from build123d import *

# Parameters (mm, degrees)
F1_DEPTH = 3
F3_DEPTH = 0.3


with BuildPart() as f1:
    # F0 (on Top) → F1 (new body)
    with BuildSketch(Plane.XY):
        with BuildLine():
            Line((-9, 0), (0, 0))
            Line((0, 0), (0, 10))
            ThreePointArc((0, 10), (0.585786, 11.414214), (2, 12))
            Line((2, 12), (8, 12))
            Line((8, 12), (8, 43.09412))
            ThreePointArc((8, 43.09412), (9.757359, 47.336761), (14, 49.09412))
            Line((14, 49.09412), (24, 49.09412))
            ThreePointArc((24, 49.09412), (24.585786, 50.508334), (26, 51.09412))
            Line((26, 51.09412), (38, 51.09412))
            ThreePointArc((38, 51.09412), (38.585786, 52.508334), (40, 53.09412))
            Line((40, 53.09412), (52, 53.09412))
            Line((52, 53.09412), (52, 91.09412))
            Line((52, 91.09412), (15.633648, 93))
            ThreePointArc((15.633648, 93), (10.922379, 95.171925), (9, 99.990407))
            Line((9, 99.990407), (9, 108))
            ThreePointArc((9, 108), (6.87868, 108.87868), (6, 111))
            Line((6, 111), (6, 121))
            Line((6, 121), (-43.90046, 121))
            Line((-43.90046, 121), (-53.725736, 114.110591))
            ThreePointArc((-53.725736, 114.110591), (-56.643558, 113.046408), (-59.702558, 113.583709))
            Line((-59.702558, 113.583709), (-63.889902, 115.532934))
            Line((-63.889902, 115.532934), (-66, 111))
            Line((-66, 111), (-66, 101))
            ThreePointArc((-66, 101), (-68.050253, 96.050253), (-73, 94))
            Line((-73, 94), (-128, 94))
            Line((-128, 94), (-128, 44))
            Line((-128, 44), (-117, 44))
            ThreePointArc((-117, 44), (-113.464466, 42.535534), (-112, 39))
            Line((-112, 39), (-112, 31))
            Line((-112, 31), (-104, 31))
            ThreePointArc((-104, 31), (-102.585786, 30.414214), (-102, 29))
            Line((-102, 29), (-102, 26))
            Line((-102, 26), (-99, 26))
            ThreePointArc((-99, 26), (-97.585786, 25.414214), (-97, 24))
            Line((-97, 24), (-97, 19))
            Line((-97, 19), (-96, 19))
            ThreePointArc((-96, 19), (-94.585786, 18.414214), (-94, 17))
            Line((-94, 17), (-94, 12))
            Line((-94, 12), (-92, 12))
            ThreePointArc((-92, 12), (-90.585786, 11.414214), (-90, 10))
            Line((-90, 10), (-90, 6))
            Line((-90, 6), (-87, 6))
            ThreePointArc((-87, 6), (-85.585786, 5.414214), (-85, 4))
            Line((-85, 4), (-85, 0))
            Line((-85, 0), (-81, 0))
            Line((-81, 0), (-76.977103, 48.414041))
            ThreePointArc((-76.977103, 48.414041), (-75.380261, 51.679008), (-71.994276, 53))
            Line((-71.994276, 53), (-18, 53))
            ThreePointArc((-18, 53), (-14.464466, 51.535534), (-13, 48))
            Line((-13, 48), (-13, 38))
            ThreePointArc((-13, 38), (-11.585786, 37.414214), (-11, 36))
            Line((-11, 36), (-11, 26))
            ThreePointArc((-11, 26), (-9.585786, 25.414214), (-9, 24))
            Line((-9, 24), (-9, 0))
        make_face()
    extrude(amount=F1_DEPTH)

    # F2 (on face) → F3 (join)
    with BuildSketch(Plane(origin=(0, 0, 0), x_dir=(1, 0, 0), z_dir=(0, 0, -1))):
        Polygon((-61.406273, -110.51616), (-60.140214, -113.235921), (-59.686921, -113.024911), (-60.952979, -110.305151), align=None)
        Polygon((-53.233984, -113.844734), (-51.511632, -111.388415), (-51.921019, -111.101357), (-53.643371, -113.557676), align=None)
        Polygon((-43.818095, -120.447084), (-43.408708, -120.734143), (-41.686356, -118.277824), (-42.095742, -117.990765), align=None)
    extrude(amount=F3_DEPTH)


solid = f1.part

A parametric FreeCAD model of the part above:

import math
import FreeCAD as App
import Part
import Sketcher
from FreeCAD import Vector
Q = App.Units.Quantity


def add_polygon(sketch, points):
    """Adds a closed chain of lines whose ends are joined by coincident constraints."""
    first, n = sketch.GeometryCount, len(points)
    for a, b in zip(points, points[1:] + points[:1]):
        sketch.addGeometry(Part.LineSegment(App.Vector(*a, 0), App.Vector(*b, 0)), False)
    for i in range(n):
        sketch.addConstraint(Sketcher.Constraint("Coincident", first + i, 2, first + (i + 1) % n, 1))

doc = App.newDocument("Part")
params = doc.addObject("Spreadsheet::Sheet", "Params")
for row, (alias, value) in enumerate([
    ("sketch1_radius", "1.999999 mm"),
    ("sketch1_radius2", "5.999999 mm"),
    ("sketch1_radius3", "7 mm"),
    ("sketch1_radius4", "3.000001 mm"),
    ("sketch1_radius5", "5 mm"),
    ("pad1_length", "3 mm"),
    ("sketch2_length", "3.000001 mm"),
    ("sketch2_length2", "0.5 mm"),
    ("pad2_length", "0.3 mm"),
], start=1):
    params.set(f"A{row}", alias)
    params.set(f"B{row}", "=" + value)
    params.setAlias(f"B{row}", alias)

body = doc.addObject("PartDesign::Body", "Body")

# Sketch on XY plane
sketch1 = body.newObject("Sketcher::SketchObject", "Sketch")
sketch1.AttachmentSupport = (doc.getObject("XY_Plane"), [""])
sketch1.MapMode = "FlatFace"
sketch1.addGeometry([
    Part.LineSegment(Vector(-9, 0, 0), Vector(0, 0, 0)),  # 0
    Part.LineSegment(Vector(0, 0, 0), Vector(0, 10, 0)),  # 1
    Part.ArcOfCircle(Part.Circle(Vector(2, 10, 0), Vector(0, 0, 1), 2), math.radians(90), math.radians(180)),  # 2
    Part.LineSegment(Vector(2, 12, 0), Vector(8, 12, 0)),  # 3
    Part.LineSegment(Vector(8, 12, 0), Vector(8, 43.1, 0)),  # 4
    Part.ArcOfCircle(Part.Circle(Vector(14, 43.1, 0), Vector(0, 0, 1), 6), math.radians(90), math.radians(180)),  # 5
    Part.LineSegment(Vector(14, 49.1, 0), Vector(24, 49.1, 0)),  # 6
    Part.ArcOfCircle(Part.Circle(Vector(26, 49.1, 0), Vector(0, 0, 1), 2), math.radians(90), math.radians(180)),  # 7
    Part.LineSegment(Vector(26, 51.1, 0), Vector(38, 51.1, 0)),  # 8
    Part.ArcOfCircle(Part.Circle(Vector(40, 51.1, 0), Vector(0, 0, 1), 2), math.radians(90), math.radians(180)),  # 9
    Part.LineSegment(Vector(40, 53.1, 0), Vector(52, 53.1, 0)),  # 10
    Part.LineSegment(Vector(52, 53.1, 0), Vector(52, 91.1, 0)),  # 11
    Part.LineSegment(Vector(52, 91.1, 0), Vector(15.6, 93, 0)),  # 12
    Part.ArcOfCircle(Part.Circle(Vector(16, 100, 0), Vector(0, 0, 1), 7), math.radians(180), math.radians(267)),  # 13
    Part.LineSegment(Vector(9, 100, 0), Vector(9, 108, 0)),  # 14
    Part.ArcOfCircle(Part.Circle(Vector(9, 111, 0), Vector(0, 0, 1), 3), math.radians(-180), math.radians(-90)),  # 15
    Part.LineSegment(Vector(6, 111, 0), Vector(6, 121, 0)),  # 16
    Part.LineSegment(Vector(6, 121, 0), Vector(-43.9, 121, 0)),  # 17
    Part.LineSegment(Vector(-43.9, 121, 0), Vector(-53.7, 114.1, 0)),  # 18
    Part.ArcOfCircle(Part.Circle(Vector(-57.2, 119, 0), Vector(0, 0, 1), 6), math.radians(-115), math.radians(-55)),  # 19
    Part.LineSegment(Vector(-59.7, 113.6, 0), Vector(-63.9, 115.5, 0)),  # 20
    Part.LineSegment(Vector(-63.9, 115.5, 0), Vector(-66, 111, 0)),  # 21
    Part.LineSegment(Vector(-66, 111, 0), Vector(-66, 101, 0)),  # 22
    Part.ArcOfCircle(Part.Circle(Vector(-73, 101, 0), Vector(0, 0, 1), 7), math.radians(-90), math.radians(0)),  # 23
    Part.LineSegment(Vector(-73, 94, 0), Vector(-128, 94, 0)),  # 24
    Part.LineSegment(Vector(-128, 94, 0), Vector(-128, 44, 0)),  # 25
    Part.LineSegment(Vector(-128, 44, 0), Vector(-117, 44, 0)),  # 26
    Part.ArcOfCircle(Part.Circle(Vector(-117, 39, 0), Vector(0, 0, 1), 5), math.radians(0), math.radians(90)),  # 27
    Part.LineSegment(Vector(-112, 39, 0), Vector(-112, 31, 0)),  # 28
    Part.LineSegment(Vector(-112, 31, 0), Vector(-104, 31, 0)),  # 29
    Part.ArcOfCircle(Part.Circle(Vector(-104, 29, 0), Vector(0, 0, 1), 2), math.radians(0), math.radians(90)),  # 30
    Part.LineSegment(Vector(-102, 29, 0), Vector(-102, 26, 0)),  # 31
    Part.LineSegment(Vector(-102, 26, 0), Vector(-99, 26, 0)),  # 32
    Part.ArcOfCircle(Part.Circle(Vector(-99, 24, 0), Vector(0, 0, 1), 2), math.radians(0), math.radians(90)),  # 33
    Part.LineSegment(Vector(-97, 24, 0), Vector(-97, 19, 0)),  # 34
    Part.LineSegment(Vector(-97, 19, 0), Vector(-96, 19, 0)),  # 35
    Part.ArcOfCircle(Part.Circle(Vector(-96, 17, 0), Vector(0, 0, 1), 2), math.radians(0), math.radians(90)),  # 36
    Part.LineSegment(Vector(-94, 17, 0), Vector(-94, 12, 0)),  # 37
    Part.LineSegment(Vector(-94, 12, 0), Vector(-92, 12, 0)),  # 38
    Part.ArcOfCircle(Part.Circle(Vector(-92, 10, 0), Vector(0, 0, 1), 2), math.radians(0), math.radians(90)),  # 39
    Part.LineSegment(Vector(-90, 10, 0), Vector(-90, 6, 0)),  # 40
    Part.LineSegment(Vector(-90, 6, 0), Vector(-87, 6, 0)),  # 41
    Part.ArcOfCircle(Part.Circle(Vector(-87, 4, 0), Vector(0, 0, 1), 2), math.radians(0), math.radians(90)),  # 42
    Part.LineSegment(Vector(-85, 4, 0), Vector(-85, 0, 0)),  # 43
    Part.LineSegment(Vector(-85, 0, 0), Vector(-81, 0, 0)),  # 44
    Part.LineSegment(Vector(-81, 0, 0), Vector(-77, 48.4, 0)),  # 45
    Part.ArcOfCircle(Part.Circle(Vector(-72, 48, 0), Vector(0, 0, 1), 5), math.radians(90), math.radians(175)),  # 46
    Part.LineSegment(Vector(-72, 53, 0), Vector(-18, 53, 0)),  # 47
    Part.ArcOfCircle(Part.Circle(Vector(-18, 48, 0), Vector(0, 0, 1), 5), math.radians(0), math.radians(90)),  # 48
    Part.LineSegment(Vector(-13, 48, 0), Vector(-13, 38, 0)),  # 49
    Part.ArcOfCircle(Part.Circle(Vector(-13, 36, 0), Vector(0, 0, 1), 2), math.radians(0), math.radians(90)),  # 50
    Part.LineSegment(Vector(-11, 36, 0), Vector(-11, 26, 0)),  # 51
    Part.ArcOfCircle(Part.Circle(Vector(-11, 24, 0), Vector(0, 0, 1), 2), math.radians(0), math.radians(90)),  # 52
    Part.LineSegment(Vector(-9, 24, 0), Vector(-9, 0, 0)),  # 53
], False)
sketch1.addConstraint([
    Sketcher.Constraint("Coincident", 0, 2, 1, 1),
    Sketcher.Constraint("Tangent", 1, 2, 2, 2),
    Sketcher.Constraint("Tangent", 2, 1, 3, 1),
    Sketcher.Constraint("Coincident", 3, 2, 4, 1),
    Sketcher.Constraint("Tangent", 4, 2, 5, 2),
    Sketcher.Constraint("Tangent", 5, 1, 6, 1),
    Sketcher.Constraint("Coincident", 6, 2, 7, 2),
    Sketcher.Constraint("Tangent", 7, 1, 8, 1),
    Sketcher.Constraint("Coincident", 8, 2, 9, 2),
    Sketcher.Constraint("Tangent", 9, 1, 10, 1),
    Sketcher.Constraint("Coincident", 10, 2, 11, 1),
    Sketcher.Constraint("Coincident", 11, 2, 12, 1),
    Sketcher.Constraint("Tangent", 12, 2, 13, 2),
    Sketcher.Constraint("Tangent", 13, 1, 14, 1),
    Sketcher.Constraint("Coincident", 14, 2, 15, 2),
    Sketcher.Constraint("Tangent", 15, 1, 16, 1),
    Sketcher.Constraint("Coincident", 16, 2, 17, 1),
    Sketcher.Constraint("Coincident", 17, 2, 18, 1),
    Sketcher.Constraint("Tangent", 18, 2, 19, 2),
    Sketcher.Constraint("Tangent", 19, 1, 20, 1),
    Sketcher.Constraint("Coincident", 20, 2, 21, 1),
    Sketcher.Constraint("Coincident", 21, 2, 22, 1),
    Sketcher.Constraint("Tangent", 22, 2, 23, 2),
    Sketcher.Constraint("Tangent", 23, 1, 24, 1),
    Sketcher.Constraint("Coincident", 24, 2, 25, 1),
    Sketcher.Constraint("Coincident", 25, 2, 26, 1),
    Sketcher.Constraint("Tangent", 26, 2, 27, 2),
    Sketcher.Constraint("Tangent", 27, 1, 28, 1),
    Sketcher.Constraint("Coincident", 28, 2, 29, 1),
    Sketcher.Constraint("Tangent", 29, 2, 30, 2),
    Sketcher.Constraint("Tangent", 30, 1, 31, 1),
    Sketcher.Constraint("Coincident", 31, 2, 32, 1),
    Sketcher.Constraint("Tangent", 32, 2, 33, 2),
    Sketcher.Constraint("Tangent", 33, 1, 34, 1),
    Sketcher.Constraint("Coincident", 34, 2, 35, 1),
    Sketcher.Constraint("Tangent", 35, 2, 36, 2),
    Sketcher.Constraint("Tangent", 36, 1, 37, 1),
    Sketcher.Constraint("Coincident", 37, 2, 38, 1),
    Sketcher.Constraint("Tangent", 38, 2, 39, 2),
    Sketcher.Constraint("Tangent", 39, 1, 40, 1),
    Sketcher.Constraint("Coincident", 40, 2, 41, 1),
    Sketcher.Constraint("Tangent", 41, 2, 42, 2),
    Sketcher.Constraint("Tangent", 42, 1, 43, 1),
    Sketcher.Constraint("Coincident", 43, 2, 44, 1),
    Sketcher.Constraint("Coincident", 44, 2, 45, 1),
    Sketcher.Constraint("Tangent", 45, 2, 46, 2),
    Sketcher.Constraint("Tangent", 46, 1, 47, 1),
    Sketcher.Constraint("Tangent", 47, 2, 48, 2),
    Sketcher.Constraint("Tangent", 48, 1, 49, 1),
    Sketcher.Constraint("Coincident", 49, 2, 50, 2),
    Sketcher.Constraint("Tangent", 50, 1, 51, 1),
    Sketcher.Constraint("Coincident", 51, 2, 52, 2),
    Sketcher.Constraint("Tangent", 52, 1, 53, 1),
    Sketcher.Constraint("Coincident", 53, 2, 0, 1),
    Sketcher.Constraint("Horizontal", 0),
    Sketcher.Constraint("Vertical", 1),
    Sketcher.Constraint("Horizontal", 3),
    Sketcher.Constraint("Vertical", 4),
    Sketcher.Constraint("Horizontal", 6),
    Sketcher.Constraint("Horizontal", 8),
    Sketcher.Constraint("Horizontal", 10),
    Sketcher.Constraint("Vertical", 11),
    Sketcher.Constraint("Vertical", 14),
    Sketcher.Constraint("Vertical", 16),
    Sketcher.Constraint("Horizontal", 17),
    Sketcher.Constraint("Vertical", 22),
    Sketcher.Constraint("Horizontal", 24),
    Sketcher.Constraint("Vertical", 25),
    Sketcher.Constraint("Horizontal", 26),
    Sketcher.Constraint("Vertical", 28),
    Sketcher.Constraint("Horizontal", 29),
    Sketcher.Constraint("Vertical", 31),
    Sketcher.Constraint("Horizontal", 32),
    Sketcher.Constraint("Vertical", 34),
    Sketcher.Constraint("Horizontal", 35),
    Sketcher.Constraint("Vertical", 37),
    Sketcher.Constraint("Horizontal", 38),
    Sketcher.Constraint("Vertical", 40),
    Sketcher.Constraint("Horizontal", 41),
    Sketcher.Constraint("Vertical", 43),
    Sketcher.Constraint("Horizontal", 44),
    Sketcher.Constraint("Horizontal", 47),
    Sketcher.Constraint("Vertical", 49),
    Sketcher.Constraint("Vertical", 51),
    Sketcher.Constraint("Vertical", 53),
    Sketcher.Constraint("Coincident", 0, 2, -1, 1),
    Sketcher.Constraint("Equal", 2, 7),
    Sketcher.Constraint("Equal", 7, 9),
    Sketcher.Constraint("Equal", 13, 23),
    Sketcher.Constraint("Equal", 9, 30),
    Sketcher.Constraint("Equal", 30, 33),
    Sketcher.Constraint("Equal", 33, 36),
    Sketcher.Constraint("Equal", 36, 39),
    Sketcher.Constraint("Equal", 39, 42),
    Sketcher.Constraint("Equal", 27, 46),
    Sketcher.Constraint("Equal", 46, 48),
    Sketcher.Constraint("Equal", 42, 50),
    Sketcher.Constraint("Equal", 50, 52),
    Sketcher.Constraint("PointOnObject", 43, 2, -1),
    Sketcher.Constraint("Perpendicular", 20, 21),
    Sketcher.Constraint("Horizontal", 2, 3, 39, 3),
    Sketcher.Constraint("Horizontal", 33, 3, 52, 3),
    Sketcher.Constraint("Horizontal", 7, 3, 5, 1),
    Sketcher.Constraint("Horizontal", 9, 3, 7, 1),
    Sketcher.Constraint("Horizontal", 15, 1, 21, 2),
    Sketcher.Constraint("Vertical", 15, 3, 13, 1),
    Sketcher.Constraint("Vertical", 50, 3, 48, 1),
    Sketcher.Constraint("Vertical", 52, 3, 50, 1),
    Sketcher.Constraint("Equal", 8, 10),
    Sketcher.Constraint("Equal", 32, 41),
    Sketcher.Constraint("Equal", 6, 1),
    Sketcher.Constraint("Equal", 1, 16),
    Sketcher.Constraint("Equal", 16, 22),
    Sketcher.Constraint("Equal", 29, 28),
    Sketcher.Constraint("Equal", 41, 31),
    Sketcher.Constraint("Equal", 34, 37),
    Sketcher.Constraint("Equal", 44, 40),
    Sketcher.Constraint("Equal", 40, 43),
    Sketcher.Constraint("Equal", 22, 49),
    Sketcher.Constraint("Equal", 49, 51),
    Sketcher.Constraint("Radius", 2, Q("1.999999 mm")),
    Sketcher.Constraint("Radius", 5, Q("5.999999 mm")),
    Sketcher.Constraint("Radius", 13, Q("7 mm")),
    Sketcher.Constraint("Radius", 15, Q("3.000001 mm")),
    Sketcher.Constraint("Radius", 27, Q("5 mm")),
    Sketcher.Constraint("DistanceX", 0, 1, 0, 2, Q("9 mm")),
    Sketcher.Constraint("DistanceX", 3, 1, 3, 2, Q("6 mm")),
    Sketcher.Constraint("DistanceX", 6, 1, 6, 2, Q("10 mm")),
    Sketcher.Constraint("DistanceX", 8, 1, 8, 2, Q("12 mm")),
    Sketcher.Constraint("DistanceX", 24, 2, 24, 1, Q("55 mm")),
    Sketcher.Constraint("DistanceX", 26, 1, 26, 2, Q("11 mm")),
    Sketcher.Constraint("DistanceX", 29, 1, 29, 2, Q("8 mm")),
    Sketcher.Constraint("DistanceX", 32, 1, 32, 2, Q("3 mm")),
    Sketcher.Constraint("DistanceX", 35, 1, 35, 2, Q("1 mm")),
    Sketcher.Constraint("DistanceX", 38, 1, 38, 2, Q("2 mm")),
    Sketcher.Constraint("DistanceY", 11, 1, 11, 2, Q("38 mm")),
    Sketcher.Constraint("DistanceY", 25, 2, 25, 1, Q("50 mm")),
    Sketcher.Constraint("DistanceY", 34, 2, 34, 1, Q("5 mm")),
    Sketcher.Constraint("Angle", 12, Q("177 deg")),
    Sketcher.Constraint("Distance", 18, Q("12 mm")),
    Sketcher.Constraint("Distance", 21, Q("5 mm")),
    Sketcher.Constraint("DistanceX", -1, 1, 13, 3, Q("16 mm")),
    Sketcher.Constraint("DistanceX", 23, 3, -1, 1, Q("73.000002 mm")),
    Sketcher.Constraint("DistanceY", -1, 1, 12, 2, Q("93 mm")),
    Sketcher.Constraint("Angle", 45, Q("85.25 deg")),
    Sketcher.Constraint("Radius", 19, Q("6.000002 mm")),
    Sketcher.Constraint("Distance", 20, Q("4.618802 mm")),
    Sketcher.Constraint("DistanceX", 17, 2, 17, 1, Q("49.90046 mm")),
])
sketch1.setExpression("Constraints[120]", "Params.sketch1_radius")
sketch1.setExpression("Constraints[121]", "Params.sketch1_radius2")
sketch1.setExpression("Constraints[122]", "Params.sketch1_radius3")
sketch1.setExpression("Constraints[123]", "Params.sketch1_radius4")
sketch1.setExpression("Constraints[124]", "Params.sketch1_radius5")
pad1 = body.newObject("PartDesign::Pad", "Pad")
pad1.Profile = sketch1
pad1.setExpression("Length", "Params.pad1_length")

# Sketch on XY plane
sketch2 = body.newObject("Sketcher::SketchObject", "Sketch001")
sketch2.AttachmentSupport = (doc.getObject("XY_Plane"), [""])
sketch2.MapMode = "FlatFace"
add_polygon(sketch2, [(-61.41, 110.52), (-60.14, 113.24), (-59.69, 113.02), (-60.95, 110.31)])  # lines 0-3
add_polygon(sketch2, [(-53.23, 113.84), (-51.51, 111.39), (-51.92, 111.1), (-53.64, 113.56)])  # lines 4-7
add_polygon(sketch2, [(-43.82, 120.45), (-43.41, 120.73), (-41.69, 118.28), (-42.1, 117.99)])  # lines 8-11
sketch2.addConstraint([
    Sketcher.Constraint("Perpendicular", 0, 1),
    Sketcher.Constraint("Perpendicular", 1, 2),
    Sketcher.Constraint("Perpendicular", 2, 3),
    Sketcher.Constraint("Perpendicular", 4, 5),
    Sketcher.Constraint("Perpendicular", 5, 6),
    Sketcher.Constraint("Perpendicular", 6, 7),
    Sketcher.Constraint("Parallel", 7, 8),
    Sketcher.Constraint("Perpendicular", 8, 9),
    Sketcher.Constraint("Perpendicular", 9, 10),
    Sketcher.Constraint("Perpendicular", 10, 11),
    Sketcher.Constraint("Equal", 2, 4),
    Sketcher.Constraint("Equal", 3, 5),
    Sketcher.Constraint("Equal", 7, 8),
    Sketcher.Constraint("Equal", 6, 9),
    Sketcher.Constraint("Distance", 0, Q("3.000001 mm")),
    Sketcher.Constraint("Distance", 1, Q("0.5 mm")),
    Sketcher.Constraint("DistanceX", 1, 2, 5, 2, Q("7.765902 mm")),
    Sketcher.Constraint("DistanceY", -1, 1, 0, 2, Q("113.235921 mm")),
    Sketcher.Constraint("DistanceX", 1, 2, -1, 1, Q("59.686921 mm")),
    Sketcher.Constraint("DistanceY", -1, 1, 1, 2, Q("113.024911 mm")),
    Sketcher.Constraint("DistanceX", 6, 2, -1, 1, Q("53.643371 mm")),
    Sketcher.Constraint("DistanceY", 7, 2, 8, 2, Q("6.889409 mm")),
    Sketcher.Constraint("DistanceX", 5, 2, 8, 2, Q("8.512311 mm")),
    Sketcher.Constraint("DistanceY", -1, 1, 4, 2, Q("111.388415 mm")),
])
sketch2.setExpression("Constraints[26]", "Params.sketch2_length")
sketch2.setExpression("Constraints[27]", "Params.sketch2_length2")
pad2 = body.newObject("PartDesign::Pad", "Pad001")
pad2.Profile = sketch2
pad2.setExpression("Length", "Params.pad2_length")
pad2.Reversed = True

doc.recompute()
